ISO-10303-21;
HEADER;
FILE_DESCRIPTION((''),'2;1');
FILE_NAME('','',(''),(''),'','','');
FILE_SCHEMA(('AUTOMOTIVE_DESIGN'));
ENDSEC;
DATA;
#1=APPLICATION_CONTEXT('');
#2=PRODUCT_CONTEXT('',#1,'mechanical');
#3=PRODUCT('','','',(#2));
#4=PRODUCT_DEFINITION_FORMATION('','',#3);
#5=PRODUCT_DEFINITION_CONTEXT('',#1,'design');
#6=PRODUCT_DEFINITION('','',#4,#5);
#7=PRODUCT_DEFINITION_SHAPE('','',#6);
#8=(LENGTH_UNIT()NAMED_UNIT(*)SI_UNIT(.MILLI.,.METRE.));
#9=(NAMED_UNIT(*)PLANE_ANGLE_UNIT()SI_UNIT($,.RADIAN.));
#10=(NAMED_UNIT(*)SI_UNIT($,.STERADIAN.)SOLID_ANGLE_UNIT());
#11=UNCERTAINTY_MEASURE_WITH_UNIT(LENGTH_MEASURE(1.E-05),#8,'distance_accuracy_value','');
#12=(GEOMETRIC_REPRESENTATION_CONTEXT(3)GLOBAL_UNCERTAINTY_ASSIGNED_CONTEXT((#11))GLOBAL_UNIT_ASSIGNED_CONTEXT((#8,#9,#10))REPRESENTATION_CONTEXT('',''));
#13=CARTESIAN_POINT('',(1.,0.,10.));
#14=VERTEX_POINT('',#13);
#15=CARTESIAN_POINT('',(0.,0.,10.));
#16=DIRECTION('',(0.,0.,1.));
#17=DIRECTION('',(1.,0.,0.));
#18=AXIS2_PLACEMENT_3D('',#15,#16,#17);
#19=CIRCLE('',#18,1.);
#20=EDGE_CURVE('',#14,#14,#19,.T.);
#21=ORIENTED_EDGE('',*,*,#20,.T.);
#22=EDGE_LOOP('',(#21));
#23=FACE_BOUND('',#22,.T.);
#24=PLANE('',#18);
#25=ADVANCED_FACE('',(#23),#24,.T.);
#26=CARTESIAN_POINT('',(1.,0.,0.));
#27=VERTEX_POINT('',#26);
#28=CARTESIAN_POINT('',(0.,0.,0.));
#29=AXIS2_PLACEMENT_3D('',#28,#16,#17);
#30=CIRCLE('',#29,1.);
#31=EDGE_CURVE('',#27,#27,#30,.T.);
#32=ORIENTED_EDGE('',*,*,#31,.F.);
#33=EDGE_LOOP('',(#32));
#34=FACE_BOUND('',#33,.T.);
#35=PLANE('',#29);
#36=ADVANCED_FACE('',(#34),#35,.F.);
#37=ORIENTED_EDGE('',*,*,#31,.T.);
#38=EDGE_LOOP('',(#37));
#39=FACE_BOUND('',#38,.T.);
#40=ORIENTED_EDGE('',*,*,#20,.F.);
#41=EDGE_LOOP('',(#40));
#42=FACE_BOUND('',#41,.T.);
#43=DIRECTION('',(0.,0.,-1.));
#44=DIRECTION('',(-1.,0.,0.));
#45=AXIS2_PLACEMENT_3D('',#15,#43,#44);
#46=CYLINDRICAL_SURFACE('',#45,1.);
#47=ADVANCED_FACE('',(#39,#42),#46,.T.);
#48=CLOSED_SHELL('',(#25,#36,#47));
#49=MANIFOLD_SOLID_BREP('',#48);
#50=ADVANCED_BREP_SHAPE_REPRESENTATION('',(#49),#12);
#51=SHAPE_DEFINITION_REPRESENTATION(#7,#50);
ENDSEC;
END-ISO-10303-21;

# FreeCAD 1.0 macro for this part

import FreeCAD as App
import Part
import Sketcher
from FreeCAD import Vector
Q = App.Units.Quantity

doc = App.newDocument("Part")
params = doc.addObject("Spreadsheet::Sheet", "Params")
for row, (alias, value) in enumerate([
    ("sketch1_diameter", "2 mm"),
    ("pad1_length", "10 mm"),
], start=1):
    params.set(f"A{row}", alias)
    params.set(f"B{row}", "=" + value)
    params.setAlias(f"B{row}", alias)

body = doc.addObject("PartDesign::Body", "Body")

# Sketch on XY plane
sketch1 = body.newObject("Sketcher::SketchObject", "Sketch")
sketch1.AttachmentSupport = (doc.getObject("XY_Plane"), [""])
sketch1.MapMode = "FlatFace"
sketch1.addGeometry(Part.Circle(Vector(0, 0, 0), Vector(0, 0, 1), 1), False)
sketch1.addConstraint([
    Sketcher.Constraint("Coincident", 0, 3, -1, 1),
    Sketcher.Constraint("Diameter", 0, Q("2 mm")),
])
sketch1.setExpression("Constraints[1]", "Params.sketch1_diameter")
pad1 = body.newObject("PartDesign::Pad", "Pad")
pad1.Profile = sketch1
pad1.setExpression("Length", "Params.pad1_length")

doc.recompute()
